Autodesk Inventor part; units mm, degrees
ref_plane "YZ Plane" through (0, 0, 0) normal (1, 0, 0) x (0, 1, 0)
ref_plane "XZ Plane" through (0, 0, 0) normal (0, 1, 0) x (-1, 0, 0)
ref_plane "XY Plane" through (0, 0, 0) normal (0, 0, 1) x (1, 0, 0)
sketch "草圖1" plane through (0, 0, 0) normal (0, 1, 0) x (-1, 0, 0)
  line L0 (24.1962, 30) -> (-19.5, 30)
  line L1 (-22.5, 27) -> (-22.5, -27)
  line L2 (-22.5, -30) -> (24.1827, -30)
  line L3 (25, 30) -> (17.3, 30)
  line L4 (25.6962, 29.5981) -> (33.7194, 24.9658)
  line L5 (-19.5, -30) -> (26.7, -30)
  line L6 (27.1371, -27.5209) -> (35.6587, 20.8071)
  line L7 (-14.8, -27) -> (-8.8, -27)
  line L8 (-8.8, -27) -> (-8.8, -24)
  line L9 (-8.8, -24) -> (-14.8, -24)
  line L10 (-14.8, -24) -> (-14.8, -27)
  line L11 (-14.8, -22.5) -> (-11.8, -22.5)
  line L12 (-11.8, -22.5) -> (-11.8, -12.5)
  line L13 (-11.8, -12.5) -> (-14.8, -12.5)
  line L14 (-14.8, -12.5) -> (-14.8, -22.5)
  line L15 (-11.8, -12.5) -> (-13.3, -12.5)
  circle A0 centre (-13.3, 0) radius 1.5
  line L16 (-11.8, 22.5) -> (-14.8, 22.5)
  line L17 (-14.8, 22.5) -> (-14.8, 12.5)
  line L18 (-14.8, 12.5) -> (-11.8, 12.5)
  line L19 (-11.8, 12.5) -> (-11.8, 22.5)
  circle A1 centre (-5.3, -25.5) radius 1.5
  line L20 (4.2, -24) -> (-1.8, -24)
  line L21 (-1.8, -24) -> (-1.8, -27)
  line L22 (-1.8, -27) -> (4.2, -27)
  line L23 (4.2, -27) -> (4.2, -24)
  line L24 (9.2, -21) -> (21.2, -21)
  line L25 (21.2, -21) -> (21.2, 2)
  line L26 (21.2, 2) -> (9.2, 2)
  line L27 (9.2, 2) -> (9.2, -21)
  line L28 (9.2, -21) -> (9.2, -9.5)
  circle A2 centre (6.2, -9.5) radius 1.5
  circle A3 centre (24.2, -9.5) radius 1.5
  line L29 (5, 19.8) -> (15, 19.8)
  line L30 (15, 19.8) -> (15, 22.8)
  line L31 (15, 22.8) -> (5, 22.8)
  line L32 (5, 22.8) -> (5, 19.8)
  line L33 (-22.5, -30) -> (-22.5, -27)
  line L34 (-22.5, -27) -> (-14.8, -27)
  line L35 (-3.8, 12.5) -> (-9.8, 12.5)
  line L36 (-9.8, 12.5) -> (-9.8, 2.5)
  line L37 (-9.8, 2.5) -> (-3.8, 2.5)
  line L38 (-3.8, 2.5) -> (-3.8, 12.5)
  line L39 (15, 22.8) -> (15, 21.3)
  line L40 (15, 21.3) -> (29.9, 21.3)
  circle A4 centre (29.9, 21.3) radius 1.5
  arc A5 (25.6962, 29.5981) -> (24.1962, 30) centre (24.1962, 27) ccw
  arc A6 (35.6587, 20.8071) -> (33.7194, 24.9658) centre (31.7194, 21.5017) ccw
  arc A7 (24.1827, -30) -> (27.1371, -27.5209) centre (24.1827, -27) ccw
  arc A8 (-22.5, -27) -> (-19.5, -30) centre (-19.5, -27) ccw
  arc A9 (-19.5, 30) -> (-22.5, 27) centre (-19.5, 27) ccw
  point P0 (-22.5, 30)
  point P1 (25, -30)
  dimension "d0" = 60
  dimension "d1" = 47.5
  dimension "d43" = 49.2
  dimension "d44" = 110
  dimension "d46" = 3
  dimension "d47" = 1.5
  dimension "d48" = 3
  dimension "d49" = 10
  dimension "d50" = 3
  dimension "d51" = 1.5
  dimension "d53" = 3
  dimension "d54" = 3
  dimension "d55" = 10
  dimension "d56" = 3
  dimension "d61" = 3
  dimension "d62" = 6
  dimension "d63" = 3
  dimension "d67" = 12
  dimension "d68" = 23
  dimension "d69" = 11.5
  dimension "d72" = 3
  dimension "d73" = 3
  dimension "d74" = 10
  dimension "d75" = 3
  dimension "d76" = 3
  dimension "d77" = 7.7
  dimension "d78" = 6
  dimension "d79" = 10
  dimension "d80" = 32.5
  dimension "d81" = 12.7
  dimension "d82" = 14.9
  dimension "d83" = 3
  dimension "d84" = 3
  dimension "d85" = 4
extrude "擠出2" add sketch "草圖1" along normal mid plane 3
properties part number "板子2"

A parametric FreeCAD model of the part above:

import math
import FreeCAD as App
import Part
import Sketcher
Q = App.Units.Quantity


def add_polygon(sketch, points):
    """Adds a closed chain of lines whose ends are joined by coincident constraints."""
    first, n = sketch.GeometryCount, len(points)
    for a, b in zip(points, points[1:] + points[:1]):
        sketch.addGeometry(Part.LineSegment(App.Vector(*a, 0), App.Vector(*b, 0)), False)
    for i in range(n):
        sketch.addConstraint(Sketcher.Constraint("Coincident", first + i, 2, first + (i + 1) % n, 1))

doc = App.newDocument("Part")
body = doc.addObject("PartDesign::Body", "Body")

# Sketch on XZ plane
sketch1 = body.newObject("Sketcher::SketchObject", "Sketch")
sketch1.AttachmentSupport = (doc.getObject("XZ_Plane"), [""])
sketch1.MapMode = "FlatFace"
sketch1.addGeometry(Part.ArcOfCircle(Part.Circle(App.Vector(-24.2, 27, 0), App.Vector(0, 0, 1), 3), math.radians(90), math.radians(120)), False)  # 0
sketch1.addGeometry(Part.LineSegment(App.Vector(-24.2, 30, 0), App.Vector(19.5, 30, 0)), False)  # 1
sketch1.addGeometry(Part.ArcOfCircle(Part.Circle(App.Vector(19.5, 27, 0), App.Vector(0, 0, 1), 3), math.radians(0), math.radians(90)), False)  # 2
sketch1.addGeometry(Part.LineSegment(App.Vector(22.5, 27, 0), App.Vector(22.5, -27, 0)), False)  # 3
sketch1.addGeometry(Part.LineSegment(App.Vector(22.5, -27, 0), App.Vector(22.5, -30, 0)), False)  # 4
sketch1.addGeometry(Part.LineSegment(App.Vector(22.5, -30, 0), App.Vector(-24.2, -30, 0)), False)  # 5
sketch1.addGeometry(Part.ArcOfCircle(Part.Circle(App.Vector(-24.2, -27, 0), App.Vector(0, 0, 1), 3), math.radians(-170), math.radians(-90)), False)  # 6
sketch1.addGeometry(Part.LineSegment(App.Vector(-27.1, -27.5, 0), App.Vector(-35.7, 20.8, 0)), False)  # 7
sketch1.addGeometry(Part.ArcOfCircle(Part.Circle(App.Vector(-31.7, 21.5, 0), App.Vector(0, 0, 1), 4), math.radians(120), math.radians(190)), False)  # 8
sketch1.addGeometry(Part.LineSegment(App.Vector(-33.7, 25, 0), App.Vector(-25.7, 29.6, 0)), False)  # 9
add_polygon(sketch1, [(8.8, -27), (14.8, -27), (14.8, -24), (8.8, -24)])  # lines 10-13
add_polygon(sketch1, [(11.8, -22.5), (14.8, -22.5), (14.8, -12.5), (11.8, -12.5)])  # lines 14-17
sketch1.addGeometry(Part.Circle(App.Vector(5.3, -25.5, 0), App.Vector(0, 0, 1), 1.5), False)  # 18
add_polygon(sketch1, [(1.8, -24), (-4.2, -24), (-4.2, -27), (1.8, -27)])  # lines 19-22
sketch1.addGeometry(Part.Circle(App.Vector(13.3, 0, 0), App.Vector(0, 0, 1), 1.5), False)  # 23
sketch1.addGeometry(Part.Circle(App.Vector(-6.2, -9.5, 0), App.Vector(0, 0, 1), 1.5), False)  # 24
add_polygon(sketch1, [(-21.2, -21), (-9.2, -21), (-9.2, 2), (-21.2, 2)])  # lines 25-28
sketch1.addGeometry(Part.Circle(App.Vector(-24.2, -9.5, 0), App.Vector(0, 0, 1), 1.5), False)  # 29
add_polygon(sketch1, [(9.8, 12.5), (3.8, 12.5), (3.8, 2.5), (9.8, 2.5)])  # lines 30-33
add_polygon(sketch1, [(14.8, 22.5), (11.8, 22.5), (11.8, 12.5), (14.8, 12.5)])  # lines 34-37
add_polygon(sketch1, [(-15, 19.8), (-5, 19.8), (-5, 22.8), (-15, 22.8), (-15, 21.3)])  # lines 38-42
sketch1.addGeometry(Part.Circle(App.Vector(-29.9, 21.3, 0), App.Vector(0, 0, 1), 1.5), False)  # 43
sketch1.addConstraint(Sketcher.Constraint("Tangent", 0, 1, 1, 1))
sketch1.addConstraint(Sketcher.Constraint("Tangent", 1, 2, 2, 2))
sketch1.addConstraint(Sketcher.Constraint("Tangent", 2, 1, 3, 1))
sketch1.addConstraint(Sketcher.Constraint("Coincident", 3, 2, 4, 1))
sketch1.addConstraint(Sketcher.Constraint("Coincident", 4, 2, 5, 1))
sketch1.addConstraint(Sketcher.Constraint("Tangent", 5, 2, 6, 2))
sketch1.addConstraint(Sketcher.Constraint("Tangent", 6, 1, 7, 1))
sketch1.addConstraint(Sketcher.Constraint("Tangent", 7, 2, 8, 2))
sketch1.addConstraint(Sketcher.Constraint("Tangent", 8, 1, 9, 1))
sketch1.addConstraint(Sketcher.Constraint("Tangent", 9, 2, 0, 2))
sketch1.addConstraint(Sketcher.Constraint("Horizontal", 1))
sketch1.addConstraint(Sketcher.Constraint("Vertical", 3))
sketch1.addConstraint(Sketcher.Constraint("Vertical", 4))
sketch1.addConstraint(Sketcher.Constraint("Horizontal", 5))
sketch1.addConstraint(Sketcher.Constraint("Horizontal", 10))
sketch1.addConstraint(Sketcher.Constraint("Vertical", 11))
sketch1.addConstraint(Sketcher.Constraint("Horizontal", 12))
sketch1.addConstraint(Sketcher.Constraint("Vertical", 13))
sketch1.addConstraint(Sketcher.Constraint("Horizontal", 14))
sketch1.addConstraint(Sketcher.Constraint("Vertical", 15))
sketch1.addConstraint(Sketcher.Constraint("Horizontal", 16))
sketch1.addConstraint(Sketcher.Constraint("Vertical", 17))
sketch1.addConstraint(Sketcher.Constraint("Horizontal", 19))
sketch1.addConstraint(Sketcher.Constraint("Vertical", 20))
sketch1.addConstraint(Sketcher.Constraint("Horizontal", 21))
sketch1.addConstraint(Sketcher.Constraint("Vertical", 22))
sketch1.addConstraint(Sketcher.Constraint("Horizontal", 25))
sketch1.addConstraint(Sketcher.Constraint("Vertical", 26))
sketch1.addConstraint(Sketcher.Constraint("Horizontal", 27))
sketch1.addConstraint(Sketcher.Constraint("Vertical", 28))
sketch1.addConstraint(Sketcher.Constraint("Horizontal", 30))
sketch1.addConstraint(Sketcher.Constraint("Vertical", 31))
sketch1.addConstraint(Sketcher.Constraint("Horizontal", 32))
sketch1.addConstraint(Sketcher.Constraint("Vertical", 33))
sketch1.addConstraint(Sketcher.Constraint("Horizontal", 34))
sketch1.addConstraint(Sketcher.Constraint("Vertical", 35))
sketch1.addConstraint(Sketcher.Constraint("Horizontal", 36))
sketch1.addConstraint(Sketcher.Constraint("Vertical", 37))
sketch1.addConstraint(Sketcher.Constraint("Horizontal", 38))
sketch1.addConstraint(Sketcher.Constraint("Vertical", 39))
sketch1.addConstraint(Sketcher.Constraint("Horizontal", 40))
sketch1.addConstraint(Sketcher.Constraint("Vertical", 41))
sketch1.addConstraint(Sketcher.Constraint("Vertical", 42))
sketch1.addConstraint(Sketcher.Constraint("Equal", 0, 2))
sketch1.addConstraint(Sketcher.Constraint("Equal", 2, 6))
sketch1.addConstraint(Sketcher.Constraint("Equal", 18, 23))
sketch1.addConstraint(Sketcher.Constraint("Equal", 23, 24))
sketch1.addConstraint(Sketcher.Constraint("Equal", 24, 29))
sketch1.addConstraint(Sketcher.Constraint("Equal", 29, 43))
sketch1.addConstraint(Sketcher.Constraint("Symmetric", 17, 2, 34, 2, -1))
sketch1.addConstraint(Sketcher.Constraint("Symmetric", 15, 2, 36, 2, -1))
sketch1.addConstraint(Sketcher.Constraint("PointOnObject", 23, 3, -1))
sketch1.addConstraint(Sketcher.Constraint("Horizontal", 24, 3, 29, 3))
sketch1.addConstraint(Sketcher.Constraint("Horizontal", 6, 3, 3, 2))
sketch1.addConstraint(Sketcher.Constraint("Horizontal", 3, 2, 10, 2))
sketch1.addConstraint(Sketcher.Constraint("Horizontal", 12, 2, 19, 2))
sketch1.addConstraint(Sketcher.Constraint("Horizontal", 13, 2, 20, 2))
sketch1.addConstraint(Sketcher.Constraint("Horizontal", 33, 2, 35, 2))
sketch1.addConstraint(Sketcher.Constraint("Horizontal", 43, 3, 41, 2))
sketch1.addConstraint(Sketcher.Constraint("Vertical", 11, 2, 14, 2))
sketch1.addConstraint(Sketcher.Constraint("Equal", 12, 19))
sketch1.addConstraint(Sketcher.Constraint("Equal", 21, 30))
sketch1.addConstraint(Sketcher.Constraint("Equal", 36, 4))
sketch1.addConstraint(Sketcher.Constraint("Equal", 4, 11))
sketch1.addConstraint(Sketcher.Constraint("Equal", 40, 15))
sketch1.addConstraint(Sketcher.Constraint("Equal", 17, 31))
sketch1.addConstraint(Sketcher.Constraint("Equal", 22, 39))
sketch1.addConstraint(Sketcher.Constraint("Equal", 41, 42))
sketch1.addConstraint(Sketcher.Constraint("Diameter", 18, Q("3 mm")))
sketch1.addConstraint(Sketcher.Constraint("Radius", 0, Q("3 mm")))
sketch1.addConstraint(Sketcher.Constraint("Radius", 8, Q("4 mm")))
sketch1.addConstraint(Sketcher.Constraint("DistanceX", 10, 1, 10, 2, Q("6 mm")))
sketch1.addConstraint(Sketcher.Constraint("DistanceX", 25, 1, 25, 2, Q("12 mm")))
sketch1.addConstraint(Sketcher.Constraint("DistanceX", 38, 1, 38, 2, Q("10 mm")))
sketch1.addConstraint(Sketcher.Constraint("DistanceY", 26, 1, 26, 2, Q("23 mm")))
sketch1.addConstraint(Sketcher.Constraint("DistanceY", 19, 2, 25, 2, Q("3 mm")))
sketch1.addConstraint(Sketcher.Constraint("DistanceX", 25, 2, 24, 3, Q("3 mm")))
sketch1.addConstraint(Sketcher.Constraint("DistanceX", 29, 3, 27, 2, Q("3 mm")))
sketch1.addConstraint(Sketcher.Constraint("DistanceX", 24, 3, 31, 2, Q("10 mm")))
sketch1.addConstraint(Sketcher.Constraint("DistanceY", 24, 3, 31, 2, Q("12 mm")))
sketch1.addConstraint(Sketcher.Constraint("DistanceY", 6, 3, 18, 3, Q("1.5 mm")))
sketch1.addConstraint(Sketcher.Constraint("DistanceX", 24, 3, 18, 3, Q("11.5 mm")))
sketch1.addConstraint(Sketcher.Constraint("DistanceX", 9, 2, 0, 1, Q("1.5 mm")))
sketch1.addConstraint(Sketcher.Constraint("DistanceX", 10, 2, 3, 2, Q("7.7 mm")))
sketch1.addConstraint(Sketcher.Constraint("DistanceX", 23, 3, 10, 2, Q("1.5 mm")))
sketch1.addConstraint(Sketcher.Constraint("DistanceY", 11, 2, 14, 2, Q("1.5 mm")))
sketch1.addConstraint(Sketcher.Constraint("DistanceY", 25, 2, 24, 3, Q("11.5 mm")))
sketch1.addConstraint(Sketcher.Constraint("DistanceY", 3, 2, 3, 1, Q("54 mm")))
sketch1.addConstraint(Sketcher.Constraint("Angle", 7, Q("100 deg")))
sketch1.addConstraint(Sketcher.Constraint("DistanceX", 38, 2, -1, 1, Q("5 mm")))
sketch1.addConstraint(Sketcher.Constraint("DistanceX", 18, 3, 23, 3, Q("8 mm")))
sketch1.addConstraint(Sketcher.Constraint("DistanceX", 19, 2, 12, 2, Q("13 mm")))
sketch1.addConstraint(Sketcher.Constraint("DistanceX", -1, 1, 2, 3, Q("19.5 mm")))
sketch1.addConstraint(Sketcher.Constraint("DistanceX", 43, 3, -1, 1, Q("29.9 mm")))
sketch1.addConstraint(Sketcher.Constraint("DistanceY", -1, 1, 43, 3, Q("21.3 mm")))
sketch1.addConstraint(Sketcher.Constraint("DistanceX", 1, 1, 1, 2, Q("43.6962 mm")))
sketch1.addConstraint(Sketcher.Constraint("DistanceX", 5, 2, 5, 1, Q("46.6827 mm")))
pad1 = body.newObject("PartDesign::Pad", "Pad")
pad1.Profile = sketch1
pad1.Length = 3
pad1.Midplane = True

doc.recompute()
